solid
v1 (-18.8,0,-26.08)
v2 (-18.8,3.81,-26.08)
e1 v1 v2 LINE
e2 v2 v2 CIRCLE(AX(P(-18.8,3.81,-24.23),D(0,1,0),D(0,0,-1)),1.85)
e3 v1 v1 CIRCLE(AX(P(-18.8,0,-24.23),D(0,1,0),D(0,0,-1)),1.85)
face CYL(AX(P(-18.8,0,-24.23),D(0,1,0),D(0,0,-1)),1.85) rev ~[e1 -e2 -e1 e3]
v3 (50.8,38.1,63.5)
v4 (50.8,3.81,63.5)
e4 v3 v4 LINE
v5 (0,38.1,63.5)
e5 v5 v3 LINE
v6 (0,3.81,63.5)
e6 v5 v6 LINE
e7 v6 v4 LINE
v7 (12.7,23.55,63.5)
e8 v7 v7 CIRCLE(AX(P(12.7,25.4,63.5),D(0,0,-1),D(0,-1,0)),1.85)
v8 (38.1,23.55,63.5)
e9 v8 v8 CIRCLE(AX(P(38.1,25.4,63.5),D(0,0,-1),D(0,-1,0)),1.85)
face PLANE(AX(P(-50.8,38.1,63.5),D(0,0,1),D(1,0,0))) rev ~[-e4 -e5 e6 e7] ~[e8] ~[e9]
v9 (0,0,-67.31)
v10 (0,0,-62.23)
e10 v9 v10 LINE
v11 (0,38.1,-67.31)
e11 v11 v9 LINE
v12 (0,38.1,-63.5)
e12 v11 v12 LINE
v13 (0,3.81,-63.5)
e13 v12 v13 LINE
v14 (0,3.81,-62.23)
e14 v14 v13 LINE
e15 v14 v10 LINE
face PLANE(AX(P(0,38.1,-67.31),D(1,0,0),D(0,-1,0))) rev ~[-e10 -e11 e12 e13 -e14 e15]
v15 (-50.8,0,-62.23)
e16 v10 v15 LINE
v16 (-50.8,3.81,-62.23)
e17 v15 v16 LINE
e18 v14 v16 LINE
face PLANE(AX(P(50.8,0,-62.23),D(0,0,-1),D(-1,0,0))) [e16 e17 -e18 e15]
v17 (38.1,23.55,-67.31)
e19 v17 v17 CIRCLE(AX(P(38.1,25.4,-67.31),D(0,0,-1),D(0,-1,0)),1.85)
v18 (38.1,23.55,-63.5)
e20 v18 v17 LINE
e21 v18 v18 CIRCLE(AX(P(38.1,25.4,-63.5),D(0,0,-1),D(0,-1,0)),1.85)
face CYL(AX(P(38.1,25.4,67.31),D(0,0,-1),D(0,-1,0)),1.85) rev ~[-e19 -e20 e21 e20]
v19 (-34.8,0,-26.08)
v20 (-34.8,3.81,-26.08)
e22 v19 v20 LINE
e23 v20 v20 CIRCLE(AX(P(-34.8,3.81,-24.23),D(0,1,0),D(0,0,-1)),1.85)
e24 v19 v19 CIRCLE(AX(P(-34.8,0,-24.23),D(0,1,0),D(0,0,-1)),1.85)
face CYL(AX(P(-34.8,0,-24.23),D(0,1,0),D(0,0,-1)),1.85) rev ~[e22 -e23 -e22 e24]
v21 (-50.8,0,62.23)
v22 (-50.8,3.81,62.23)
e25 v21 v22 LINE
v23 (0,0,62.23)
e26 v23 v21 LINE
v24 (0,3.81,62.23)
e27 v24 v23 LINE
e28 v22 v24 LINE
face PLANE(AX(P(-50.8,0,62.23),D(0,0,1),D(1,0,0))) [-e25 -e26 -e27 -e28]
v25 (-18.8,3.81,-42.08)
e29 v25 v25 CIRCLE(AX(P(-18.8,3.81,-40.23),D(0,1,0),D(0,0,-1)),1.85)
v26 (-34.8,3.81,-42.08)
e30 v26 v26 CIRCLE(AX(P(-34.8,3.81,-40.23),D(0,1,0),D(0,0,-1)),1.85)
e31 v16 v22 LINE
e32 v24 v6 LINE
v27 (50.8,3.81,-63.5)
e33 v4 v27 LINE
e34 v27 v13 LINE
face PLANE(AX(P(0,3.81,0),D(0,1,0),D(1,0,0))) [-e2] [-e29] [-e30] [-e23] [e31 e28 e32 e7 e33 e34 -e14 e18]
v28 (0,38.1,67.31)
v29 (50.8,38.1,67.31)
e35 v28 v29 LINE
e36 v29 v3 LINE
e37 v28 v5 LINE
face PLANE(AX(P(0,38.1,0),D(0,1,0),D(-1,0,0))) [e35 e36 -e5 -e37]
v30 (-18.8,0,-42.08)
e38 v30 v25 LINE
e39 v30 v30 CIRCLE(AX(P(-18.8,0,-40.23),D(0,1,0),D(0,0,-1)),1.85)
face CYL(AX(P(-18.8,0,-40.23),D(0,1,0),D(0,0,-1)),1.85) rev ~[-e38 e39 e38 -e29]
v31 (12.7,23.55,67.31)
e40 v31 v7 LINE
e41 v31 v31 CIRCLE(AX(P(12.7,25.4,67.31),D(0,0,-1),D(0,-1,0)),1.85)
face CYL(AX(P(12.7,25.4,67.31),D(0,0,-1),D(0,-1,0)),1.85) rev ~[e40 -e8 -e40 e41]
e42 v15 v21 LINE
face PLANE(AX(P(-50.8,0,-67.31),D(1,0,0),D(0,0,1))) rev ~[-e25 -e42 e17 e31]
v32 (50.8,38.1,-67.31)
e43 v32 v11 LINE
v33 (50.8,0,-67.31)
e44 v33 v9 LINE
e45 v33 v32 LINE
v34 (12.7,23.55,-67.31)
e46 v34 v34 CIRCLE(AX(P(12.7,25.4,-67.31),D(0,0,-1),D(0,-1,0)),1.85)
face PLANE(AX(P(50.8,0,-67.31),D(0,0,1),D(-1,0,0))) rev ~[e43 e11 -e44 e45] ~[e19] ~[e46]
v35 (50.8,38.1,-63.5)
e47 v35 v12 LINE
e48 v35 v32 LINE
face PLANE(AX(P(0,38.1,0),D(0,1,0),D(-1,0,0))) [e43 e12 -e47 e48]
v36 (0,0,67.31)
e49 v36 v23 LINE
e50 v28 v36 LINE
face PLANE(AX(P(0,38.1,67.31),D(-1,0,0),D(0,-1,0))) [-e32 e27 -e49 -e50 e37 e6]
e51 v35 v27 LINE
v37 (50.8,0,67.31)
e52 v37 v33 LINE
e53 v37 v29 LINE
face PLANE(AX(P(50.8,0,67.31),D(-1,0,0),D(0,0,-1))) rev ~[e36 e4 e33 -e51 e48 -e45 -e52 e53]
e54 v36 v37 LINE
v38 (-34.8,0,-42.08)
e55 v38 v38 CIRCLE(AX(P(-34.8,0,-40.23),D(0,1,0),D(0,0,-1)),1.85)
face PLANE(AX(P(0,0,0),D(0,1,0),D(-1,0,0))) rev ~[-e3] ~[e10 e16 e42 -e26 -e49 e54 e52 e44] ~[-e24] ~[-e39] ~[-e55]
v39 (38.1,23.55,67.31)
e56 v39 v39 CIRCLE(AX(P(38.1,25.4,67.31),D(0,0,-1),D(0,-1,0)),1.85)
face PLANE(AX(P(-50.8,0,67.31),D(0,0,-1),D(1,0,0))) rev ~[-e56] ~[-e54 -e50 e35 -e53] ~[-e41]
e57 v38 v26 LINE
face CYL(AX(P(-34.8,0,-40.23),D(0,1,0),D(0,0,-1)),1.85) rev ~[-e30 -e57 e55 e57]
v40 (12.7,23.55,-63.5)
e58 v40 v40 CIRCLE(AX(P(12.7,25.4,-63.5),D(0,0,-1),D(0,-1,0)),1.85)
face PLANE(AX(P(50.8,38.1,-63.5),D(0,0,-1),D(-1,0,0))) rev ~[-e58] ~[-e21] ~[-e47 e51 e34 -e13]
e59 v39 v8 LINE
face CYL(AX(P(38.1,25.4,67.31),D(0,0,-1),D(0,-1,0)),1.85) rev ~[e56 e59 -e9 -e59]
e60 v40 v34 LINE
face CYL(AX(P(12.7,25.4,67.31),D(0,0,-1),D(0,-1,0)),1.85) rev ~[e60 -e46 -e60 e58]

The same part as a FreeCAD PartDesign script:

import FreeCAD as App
import Part
import Sketcher

V = App.Vector
Q = App.Units.Quantity


def add_polygon(sketch, points):
    """Adds a closed chain of lines whose ends are joined by coincident constraints."""
    first, n = sketch.GeometryCount, len(points)
    for a, b in zip(points, points[1:] + points[:1]):
        sketch.addGeometry(Part.LineSegment(App.Vector(*a, 0), App.Vector(*b, 0)), False)
    for i in range(n):
        sketch.addConstraint(Sketcher.Constraint("Coincident", first + i, 2, first + (i + 1) % n, 1))

doc = App.newDocument("Part")
body = doc.addObject("PartDesign::Body", "Body")

sketch1 = body.newObject("Sketcher::SketchObject", "Sketch")
sketch1.AttachmentSupport = (doc.getObject("XZ_Plane"), [""])
sketch1.MapMode = "FlatFace"
add_polygon(sketch1, [(51, 67), (51, -67), (-51, -67), (-51, 67)])
sketch1.addConstraint(Sketcher.Constraint("Vertical", 0))
sketch1.addConstraint(Sketcher.Constraint("Horizontal", 1))
sketch1.addConstraint(Sketcher.Constraint("Vertical", 2))
sketch1.addConstraint(Sketcher.Constraint("Horizontal", 3))
sketch1.addConstraint(Sketcher.Constraint("Symmetric", 0, 2, 2, 2, -1, 1))
sketch1.addConstraint(Sketcher.Constraint("DistanceX", 1, 2, 1, 1, Q("4 in")))
sketch1.addConstraint(Sketcher.Constraint("DistanceY", 0, 2, 0, 1, Q("5.3 in")))
pad1 = body.newObject("PartDesign::Pad", "Pad")
pad1.Profile = sketch1
pad1.Length = Q("1.5 in")
pad1.Reversed = True

sketch2 = body.newObject("Sketcher::SketchObject", "Sketch001")
sketch2.AttachmentSupport = (doc.getObject("XZ_Plane"), [""])
sketch2.MapMode = "FlatFace"
sketch2.AttachmentOffset = App.Placement(V(0, 0, -1.5 * 25.4), App.Rotation())
add_polygon(sketch2, [(51, 64), (51, -64), (-51, -64), (-51, 64)])
sketch2.addConstraint(Sketcher.Constraint("Vertical", 0))
sketch2.addConstraint(Sketcher.Constraint("Horizontal", 1))
sketch2.addConstraint(Sketcher.Constraint("Vertical", 2))
sketch2.addConstraint(Sketcher.Constraint("Horizontal", 3))
sketch2.addConstraint(Sketcher.Constraint("Symmetric", 0, 2, 2, 2, -1, 1))
sketch2.addConstraint(Sketcher.Constraint("DistanceY", 0, 2, 0, 1, Q("5 in")))
sketch2.addConstraint(Sketcher.Constraint("DistanceX", 1, 2, 1, 1, Q("4 in")))
pocket1 = body.newObject("PartDesign::Pocket", "Pocket")
pocket1.Profile = sketch2
pocket1.Length = Q("1.35 in")
pocket1.Reversed = True

sketch3 = body.newObject("Sketcher::SketchObject", "Sketch002")
sketch3.AttachmentSupport = (doc.getObject("XY_Plane"), [""])
sketch3.MapMode = "FlatFace"
sketch3.AttachmentOffset = App.Placement(V(0, 0, -2.65 * 25.4), App.Rotation())
add_polygon(sketch3, [(-51, 0), (-51, 38), (0, 38), (0, 0)])
sketch3.addConstraint(Sketcher.Constraint("Vertical", 0))
sketch3.addConstraint(Sketcher.Constraint("Horizontal", 1))
sketch3.addConstraint(Sketcher.Constraint("Vertical", 2))
sketch3.addConstraint(Sketcher.Constraint("Horizontal", 3))
sketch3.addConstraint(Sketcher.Constraint("Coincident", 2, 2, -1, 1))
sketch3.addConstraint(Sketcher.Constraint("DistanceX", 1, 1, 1, 2, Q("2 in")))
sketch3.addConstraint(Sketcher.Constraint("DistanceY", 0, 1, 0, 2, Q("1.5 in")))
pocket2 = body.newObject("PartDesign::Pocket", "Pocket001")
pocket2.Profile = sketch3
pocket2.Length = Q("0.2 in")
pocket2.Reversed = True

sketch4 = body.newObject("Sketcher::SketchObject", "Sketch003")
sketch4.AttachmentSupport = (doc.getObject("XY_Plane"), [""])
sketch4.MapMode = "FlatFace"
sketch4.AttachmentOffset = App.Placement(V(0, 0, 2.65 * 25.4), App.Rotation())
add_polygon(sketch4, [(0, 38), (-51, 38), (-51, 0), (0, 0)])
sketch4.addConstraint(Sketcher.Constraint("Horizontal", 0))
sketch4.addConstraint(Sketcher.Constraint("Vertical", 1))
sketch4.addConstraint(Sketcher.Constraint("Horizontal", 2))
sketch4.addConstraint(Sketcher.Constraint("Vertical", 3))
sketch4.addConstraint(Sketcher.Constraint("Coincident", 2, 2, -1, 1))
sketch4.addConstraint(Sketcher.Constraint("DistanceX", 0, 2, 0, 1, Q("2 in")))
sketch4.addConstraint(Sketcher.Constraint("DistanceY", 1, 2, 1, 1, Q("1.5 in")))
pocket3 = body.newObject("PartDesign::Pocket", "Pocket002")
pocket3.Profile = sketch4
pocket3.Length = Q("0.2 in")

sketch5 = body.newObject("Sketcher::SketchObject", "Sketch004")
sketch5.AttachmentSupport = (doc.getObject("XY_Plane"), [""])
sketch5.MapMode = "FlatFace"
sketch5.AttachmentOffset = App.Placement(V(0, 0, 2.65 * 25.4), App.Rotation())
sketch5.addGeometry(Part.Circle(V(12.7, 25.4, 0), V(0, 0, 1), 1.9), False)
sketch5.addGeometry(Part.Circle(V(38.1, 25.4, 0), V(0, 0, 1), 1.9), False)
sketch5.addConstraint(Sketcher.Constraint("Equal", 0, 1))
sketch5.addConstraint(Sketcher.Constraint("Horizontal", 0, 3, 1, 3))
sketch5.addConstraint(Sketcher.Constraint("DistanceY", -1, 1, 0, 3, Q("1 in")))
sketch5.addConstraint(Sketcher.Constraint("DistanceX", 0, 3, 1, 3, Q("1 in")))
sketch5.addConstraint(Sketcher.Constraint("DistanceX", -1, 1, 0, 3, Q("0.5 in")))
sketch5.addConstraint(Sketcher.Constraint("Diameter", 0, 3.7))
doc.recompute()
hole = body.newObject("PartDesign::Hole", "Hole")
hole.Profile = sketch5
hole.ThreadType = "None"
hole.Diameter = 3.7
hole.DepthType = "ThroughAll"

sketch6 = body.newObject("Sketcher::SketchObject", "Sketch005")
sketch6.AttachmentSupport = (doc.getObject("XZ_Plane"), [""])
sketch6.MapMode = "FlatFace"
sketch6.addGeometry(Part.Circle(V(-18.8, -24.2, 0), V(0, 0, 1), 1.9), False)
sketch6.addGeometry(Part.Circle(V(-34.8, -24.2, 0), V(0, 0, 1), 1.9), False)
sketch6.addGeometry(Part.Circle(V(-34.8, -40.2, 0), V(0, 0, 1), 1.9), False)
sketch6.addGeometry(Part.Circle(V(-18.8, -40.2, 0), V(0, 0, 1), 1.9), False)
sketch6.addConstraint(Sketcher.Constraint("Equal", 0, 1))
sketch6.addConstraint(Sketcher.Constraint("Equal", 1, 2))
sketch6.addConstraint(Sketcher.Constraint("Equal", 2, 3))
sketch6.addConstraint(Sketcher.Constraint("Horizontal", 0, 3, 1, 3))
sketch6.addConstraint(Sketcher.Constraint("Horizontal", 2, 3, 3, 3))
sketch6.addConstraint(Sketcher.Constraint("Vertical", 1, 3, 2, 3))
sketch6.addConstraint(Sketcher.Constraint("Vertical", 0, 3, 3, 3))
sketch6.addConstraint(Sketcher.Constraint("Diameter", 0, 3.7))
sketch6.addConstraint(Sketcher.Constraint("DistanceX", 0, 3, -1, 1, 18.8))
sketch6.addConstraint(Sketcher.Constraint("DistanceY", 0, 3, -1, 1, 24.23))
sketch6.addConstraint(Sketcher.Constraint("DistanceX", 1, 3, -1, 1, 34.8))
sketch6.addConstraint(Sketcher.Constraint("DistanceY", 2, 3, -1, 1, 40.23))
doc.recompute()
hole2 = body.newObject("PartDesign::Hole", "Hole001")
hole2.Profile = sketch6
hole2.ThreadType = "None"
hole2.Diameter = 3.7
hole2.DepthType = "ThroughAll"

doc.recompute()
